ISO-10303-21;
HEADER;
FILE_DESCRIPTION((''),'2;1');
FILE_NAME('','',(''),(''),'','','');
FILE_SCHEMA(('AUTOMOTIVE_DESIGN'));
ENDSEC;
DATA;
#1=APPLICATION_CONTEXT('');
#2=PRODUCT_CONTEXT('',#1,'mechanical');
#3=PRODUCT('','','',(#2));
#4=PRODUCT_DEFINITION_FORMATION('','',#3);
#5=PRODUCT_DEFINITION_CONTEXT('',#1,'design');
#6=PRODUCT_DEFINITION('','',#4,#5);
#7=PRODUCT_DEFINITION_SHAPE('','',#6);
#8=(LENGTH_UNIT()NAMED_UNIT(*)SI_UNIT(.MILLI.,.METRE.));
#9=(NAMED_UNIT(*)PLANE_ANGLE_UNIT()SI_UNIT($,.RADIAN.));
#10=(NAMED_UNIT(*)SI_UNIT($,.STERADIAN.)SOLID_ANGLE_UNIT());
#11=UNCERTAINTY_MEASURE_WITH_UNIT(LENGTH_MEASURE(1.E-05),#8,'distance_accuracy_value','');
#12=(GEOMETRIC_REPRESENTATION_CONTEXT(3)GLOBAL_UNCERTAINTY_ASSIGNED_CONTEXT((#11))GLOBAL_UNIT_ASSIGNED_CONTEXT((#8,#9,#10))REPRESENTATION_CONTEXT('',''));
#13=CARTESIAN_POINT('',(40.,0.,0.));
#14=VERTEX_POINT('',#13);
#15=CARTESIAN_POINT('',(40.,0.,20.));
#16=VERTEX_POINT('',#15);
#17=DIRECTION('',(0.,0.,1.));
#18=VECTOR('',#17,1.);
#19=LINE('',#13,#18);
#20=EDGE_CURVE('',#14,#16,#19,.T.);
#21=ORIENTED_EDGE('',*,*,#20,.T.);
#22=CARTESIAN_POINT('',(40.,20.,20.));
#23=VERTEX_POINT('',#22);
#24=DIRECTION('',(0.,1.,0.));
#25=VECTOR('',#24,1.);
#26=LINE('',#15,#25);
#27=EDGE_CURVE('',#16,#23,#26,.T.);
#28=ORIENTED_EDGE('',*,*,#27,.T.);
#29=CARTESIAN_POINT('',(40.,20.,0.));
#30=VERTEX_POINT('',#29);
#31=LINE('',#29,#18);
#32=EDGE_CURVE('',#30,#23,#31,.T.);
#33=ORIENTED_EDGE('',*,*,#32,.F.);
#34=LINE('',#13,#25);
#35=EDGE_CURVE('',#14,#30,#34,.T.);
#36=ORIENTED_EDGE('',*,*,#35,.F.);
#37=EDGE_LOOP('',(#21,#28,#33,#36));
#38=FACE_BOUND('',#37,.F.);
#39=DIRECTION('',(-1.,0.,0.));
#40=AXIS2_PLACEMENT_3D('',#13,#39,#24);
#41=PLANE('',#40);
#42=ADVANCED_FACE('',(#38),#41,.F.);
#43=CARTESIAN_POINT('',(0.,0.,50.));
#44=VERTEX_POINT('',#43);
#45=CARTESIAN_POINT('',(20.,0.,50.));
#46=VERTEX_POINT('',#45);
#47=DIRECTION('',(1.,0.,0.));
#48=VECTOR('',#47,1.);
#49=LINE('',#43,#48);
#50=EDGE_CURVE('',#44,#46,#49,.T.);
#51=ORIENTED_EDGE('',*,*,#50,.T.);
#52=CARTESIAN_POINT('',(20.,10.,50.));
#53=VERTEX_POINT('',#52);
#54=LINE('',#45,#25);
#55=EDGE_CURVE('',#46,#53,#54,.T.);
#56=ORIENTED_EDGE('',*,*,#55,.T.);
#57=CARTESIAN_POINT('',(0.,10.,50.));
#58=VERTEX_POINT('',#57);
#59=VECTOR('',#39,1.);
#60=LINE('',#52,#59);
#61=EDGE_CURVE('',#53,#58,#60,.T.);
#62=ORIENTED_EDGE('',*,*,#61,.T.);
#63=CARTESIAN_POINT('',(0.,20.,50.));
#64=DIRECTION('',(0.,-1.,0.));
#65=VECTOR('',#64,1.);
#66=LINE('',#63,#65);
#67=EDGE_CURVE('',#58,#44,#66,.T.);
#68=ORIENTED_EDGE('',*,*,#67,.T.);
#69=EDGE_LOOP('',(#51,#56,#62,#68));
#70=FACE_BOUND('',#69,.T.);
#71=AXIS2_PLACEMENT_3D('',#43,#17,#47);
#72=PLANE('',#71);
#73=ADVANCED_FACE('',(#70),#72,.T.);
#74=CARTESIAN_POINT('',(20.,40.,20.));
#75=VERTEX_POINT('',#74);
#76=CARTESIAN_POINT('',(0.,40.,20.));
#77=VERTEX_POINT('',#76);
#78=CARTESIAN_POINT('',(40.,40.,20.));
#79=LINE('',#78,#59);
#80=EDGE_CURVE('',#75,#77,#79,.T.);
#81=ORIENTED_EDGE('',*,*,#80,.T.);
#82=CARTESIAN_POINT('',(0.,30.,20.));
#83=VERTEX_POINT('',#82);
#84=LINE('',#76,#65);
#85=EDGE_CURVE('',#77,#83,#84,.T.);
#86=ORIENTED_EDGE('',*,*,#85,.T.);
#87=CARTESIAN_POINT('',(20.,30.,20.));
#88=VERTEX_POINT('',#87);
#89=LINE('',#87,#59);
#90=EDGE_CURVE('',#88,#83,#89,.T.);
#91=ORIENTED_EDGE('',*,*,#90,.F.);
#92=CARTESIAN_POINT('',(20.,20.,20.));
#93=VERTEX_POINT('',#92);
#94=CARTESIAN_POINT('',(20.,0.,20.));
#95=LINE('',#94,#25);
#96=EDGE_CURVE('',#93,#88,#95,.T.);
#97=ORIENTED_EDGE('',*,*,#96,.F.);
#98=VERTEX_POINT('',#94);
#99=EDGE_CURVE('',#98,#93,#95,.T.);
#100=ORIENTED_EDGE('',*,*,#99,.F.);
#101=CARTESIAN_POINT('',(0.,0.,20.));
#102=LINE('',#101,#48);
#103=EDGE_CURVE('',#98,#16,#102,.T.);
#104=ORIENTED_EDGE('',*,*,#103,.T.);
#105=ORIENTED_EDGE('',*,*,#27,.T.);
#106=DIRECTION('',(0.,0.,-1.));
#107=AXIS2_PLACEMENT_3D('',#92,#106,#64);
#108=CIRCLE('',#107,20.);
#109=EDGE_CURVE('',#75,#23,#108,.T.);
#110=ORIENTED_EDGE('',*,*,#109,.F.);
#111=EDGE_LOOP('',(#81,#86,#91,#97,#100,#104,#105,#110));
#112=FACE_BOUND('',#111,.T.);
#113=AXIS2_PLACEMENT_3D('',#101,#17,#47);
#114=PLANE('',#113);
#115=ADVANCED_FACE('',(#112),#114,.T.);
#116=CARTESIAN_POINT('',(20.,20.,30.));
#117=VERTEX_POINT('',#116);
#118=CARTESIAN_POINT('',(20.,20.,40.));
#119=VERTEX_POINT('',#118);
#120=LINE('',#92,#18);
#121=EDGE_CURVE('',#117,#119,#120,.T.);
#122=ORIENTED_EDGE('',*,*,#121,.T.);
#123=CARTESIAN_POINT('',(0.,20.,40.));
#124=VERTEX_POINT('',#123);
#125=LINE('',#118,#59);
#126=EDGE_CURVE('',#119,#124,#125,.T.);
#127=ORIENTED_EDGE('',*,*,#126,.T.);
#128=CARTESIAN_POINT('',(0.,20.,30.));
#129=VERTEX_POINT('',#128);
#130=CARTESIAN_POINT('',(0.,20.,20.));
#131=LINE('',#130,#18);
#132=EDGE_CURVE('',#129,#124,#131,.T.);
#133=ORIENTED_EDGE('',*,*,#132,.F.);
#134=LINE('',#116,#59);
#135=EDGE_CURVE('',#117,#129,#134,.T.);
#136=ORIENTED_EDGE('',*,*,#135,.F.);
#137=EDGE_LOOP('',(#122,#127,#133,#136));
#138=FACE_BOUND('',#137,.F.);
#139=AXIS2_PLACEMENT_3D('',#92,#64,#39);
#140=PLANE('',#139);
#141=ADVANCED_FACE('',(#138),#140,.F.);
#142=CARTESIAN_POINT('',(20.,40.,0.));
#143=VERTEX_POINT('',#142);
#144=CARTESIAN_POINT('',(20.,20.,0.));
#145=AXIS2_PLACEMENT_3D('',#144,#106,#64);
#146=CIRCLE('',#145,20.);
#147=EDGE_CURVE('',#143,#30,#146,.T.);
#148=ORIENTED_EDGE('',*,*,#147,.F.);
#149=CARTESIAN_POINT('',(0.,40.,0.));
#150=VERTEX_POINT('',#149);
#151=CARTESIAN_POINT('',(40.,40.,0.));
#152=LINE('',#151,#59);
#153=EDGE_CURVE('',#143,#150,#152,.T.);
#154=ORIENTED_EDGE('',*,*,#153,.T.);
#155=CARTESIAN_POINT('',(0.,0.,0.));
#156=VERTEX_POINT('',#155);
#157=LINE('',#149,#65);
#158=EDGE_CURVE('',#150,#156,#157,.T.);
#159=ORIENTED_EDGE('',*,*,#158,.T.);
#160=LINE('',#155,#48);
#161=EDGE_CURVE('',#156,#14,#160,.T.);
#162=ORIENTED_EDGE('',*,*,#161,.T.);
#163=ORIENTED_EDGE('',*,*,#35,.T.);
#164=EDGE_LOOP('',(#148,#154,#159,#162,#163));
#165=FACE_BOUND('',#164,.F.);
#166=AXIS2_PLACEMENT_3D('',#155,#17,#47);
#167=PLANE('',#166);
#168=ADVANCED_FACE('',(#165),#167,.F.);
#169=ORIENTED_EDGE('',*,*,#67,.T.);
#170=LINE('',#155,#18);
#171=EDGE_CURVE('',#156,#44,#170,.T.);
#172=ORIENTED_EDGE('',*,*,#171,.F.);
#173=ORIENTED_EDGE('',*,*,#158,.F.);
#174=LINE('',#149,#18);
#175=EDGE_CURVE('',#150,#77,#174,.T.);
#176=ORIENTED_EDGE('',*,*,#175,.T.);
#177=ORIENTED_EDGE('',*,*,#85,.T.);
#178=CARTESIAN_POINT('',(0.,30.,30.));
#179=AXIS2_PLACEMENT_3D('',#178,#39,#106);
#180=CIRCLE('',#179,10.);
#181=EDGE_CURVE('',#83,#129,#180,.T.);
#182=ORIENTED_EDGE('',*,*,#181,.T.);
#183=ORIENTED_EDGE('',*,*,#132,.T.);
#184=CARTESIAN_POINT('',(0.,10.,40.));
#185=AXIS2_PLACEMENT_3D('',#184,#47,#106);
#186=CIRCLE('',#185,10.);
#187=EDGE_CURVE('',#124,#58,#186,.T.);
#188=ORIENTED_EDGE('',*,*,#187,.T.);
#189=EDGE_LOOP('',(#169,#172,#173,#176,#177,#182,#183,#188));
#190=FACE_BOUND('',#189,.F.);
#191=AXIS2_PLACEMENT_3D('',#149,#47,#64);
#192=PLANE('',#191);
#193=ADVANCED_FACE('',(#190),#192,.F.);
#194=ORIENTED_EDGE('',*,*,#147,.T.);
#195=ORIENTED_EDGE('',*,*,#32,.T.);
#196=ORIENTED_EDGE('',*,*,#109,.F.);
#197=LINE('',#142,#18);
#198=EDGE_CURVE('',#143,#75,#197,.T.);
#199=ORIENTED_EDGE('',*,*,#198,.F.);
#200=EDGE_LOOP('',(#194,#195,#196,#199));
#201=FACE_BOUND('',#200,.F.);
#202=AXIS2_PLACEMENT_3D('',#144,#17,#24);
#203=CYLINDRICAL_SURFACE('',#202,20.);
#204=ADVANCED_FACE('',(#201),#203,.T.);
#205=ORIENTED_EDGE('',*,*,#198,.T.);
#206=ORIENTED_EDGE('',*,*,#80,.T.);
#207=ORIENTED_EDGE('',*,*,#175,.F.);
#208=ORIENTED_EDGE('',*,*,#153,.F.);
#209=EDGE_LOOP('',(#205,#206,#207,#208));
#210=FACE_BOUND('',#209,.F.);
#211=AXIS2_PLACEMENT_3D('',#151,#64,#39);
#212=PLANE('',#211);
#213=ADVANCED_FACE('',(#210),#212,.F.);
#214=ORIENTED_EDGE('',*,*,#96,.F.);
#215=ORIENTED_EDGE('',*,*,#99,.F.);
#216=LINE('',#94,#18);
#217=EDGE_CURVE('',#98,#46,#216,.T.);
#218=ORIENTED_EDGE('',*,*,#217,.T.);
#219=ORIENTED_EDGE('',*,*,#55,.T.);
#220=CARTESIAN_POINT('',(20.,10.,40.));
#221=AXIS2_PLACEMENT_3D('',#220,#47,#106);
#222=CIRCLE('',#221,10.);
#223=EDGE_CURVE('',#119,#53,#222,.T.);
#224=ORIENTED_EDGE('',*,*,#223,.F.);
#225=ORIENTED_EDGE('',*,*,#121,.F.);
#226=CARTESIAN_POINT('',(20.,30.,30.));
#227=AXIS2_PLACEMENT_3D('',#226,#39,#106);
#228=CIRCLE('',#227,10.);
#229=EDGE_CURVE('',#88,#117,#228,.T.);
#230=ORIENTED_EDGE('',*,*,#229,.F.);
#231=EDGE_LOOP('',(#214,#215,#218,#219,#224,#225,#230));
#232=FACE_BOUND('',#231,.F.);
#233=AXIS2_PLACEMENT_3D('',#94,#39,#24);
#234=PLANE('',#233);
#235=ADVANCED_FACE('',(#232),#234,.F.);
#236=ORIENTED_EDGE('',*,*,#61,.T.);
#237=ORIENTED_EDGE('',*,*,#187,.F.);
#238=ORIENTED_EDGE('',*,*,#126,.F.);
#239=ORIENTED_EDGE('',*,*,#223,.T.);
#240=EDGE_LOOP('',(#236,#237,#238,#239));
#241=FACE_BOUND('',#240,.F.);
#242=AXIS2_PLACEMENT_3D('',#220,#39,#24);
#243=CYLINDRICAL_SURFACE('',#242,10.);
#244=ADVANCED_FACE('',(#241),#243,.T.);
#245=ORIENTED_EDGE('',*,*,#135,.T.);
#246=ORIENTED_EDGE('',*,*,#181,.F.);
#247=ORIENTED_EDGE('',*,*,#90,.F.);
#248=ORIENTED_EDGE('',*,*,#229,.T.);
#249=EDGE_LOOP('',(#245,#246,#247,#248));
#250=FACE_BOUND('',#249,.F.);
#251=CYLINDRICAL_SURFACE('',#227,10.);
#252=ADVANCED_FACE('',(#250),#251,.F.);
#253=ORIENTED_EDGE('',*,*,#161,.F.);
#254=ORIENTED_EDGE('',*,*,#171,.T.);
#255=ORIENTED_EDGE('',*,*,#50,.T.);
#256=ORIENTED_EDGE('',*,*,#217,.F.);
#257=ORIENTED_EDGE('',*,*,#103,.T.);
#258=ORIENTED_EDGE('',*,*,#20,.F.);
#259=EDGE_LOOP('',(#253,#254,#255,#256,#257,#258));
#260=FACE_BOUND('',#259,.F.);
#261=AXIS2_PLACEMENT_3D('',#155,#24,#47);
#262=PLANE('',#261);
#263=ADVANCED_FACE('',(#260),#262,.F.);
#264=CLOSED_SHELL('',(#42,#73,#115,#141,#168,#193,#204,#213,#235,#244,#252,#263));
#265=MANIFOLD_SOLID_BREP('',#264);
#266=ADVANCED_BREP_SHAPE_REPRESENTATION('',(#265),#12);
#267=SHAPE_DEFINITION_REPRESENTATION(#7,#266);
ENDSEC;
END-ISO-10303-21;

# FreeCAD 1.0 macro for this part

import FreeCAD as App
import Part
import Sketcher

V = App.Vector


def edges_at(feature, points):
    """Names of the edges that pass closest to the given points."""
    edges = feature.Shape.Edges
    near = lambda p: min(range(len(edges)), key=lambda i: edges[i].distToShape(Part.Vertex(*p))[0])
    return sorted({f"Edge{near(p) + 1}" for p in points})


def add_polygon(sketch, points):
    """Adds a closed chain of lines whose ends are joined by coincident constraints."""
    first, n = sketch.GeometryCount, len(points)
    for a, b in zip(points, points[1:] + points[:1]):
        sketch.addGeometry(Part.LineSegment(App.Vector(*a, 0), App.Vector(*b, 0)), False)
    for i in range(n):
        sketch.addConstraint(Sketcher.Constraint("Coincident", first + i, 2, first + (i + 1) % n, 1))

doc = App.newDocument("Part")
body = doc.addObject("PartDesign::Body", "Body")

sketch1 = doc.addObject("Sketcher::SketchObject", "Sketch")
body.addObject(sketch1)
sketch1.AttachmentSupport = (doc.XY_Plane, [""])
sketch1.MapMode = "FlatFace"
add_polygon(sketch1, [(0, 40), (0, 0), (40, 0), (40, 40)])
sketch1.addConstraint([
    Sketcher.Constraint("Vertical", 0),
    Sketcher.Constraint("Horizontal", 1),
    Sketcher.Constraint("Vertical", 2),
    Sketcher.Constraint("Horizontal", 3),
    Sketcher.Constraint("Coincident", 0, 2, -1, 1),
    Sketcher.Constraint("Equal", 3, 0),
    Sketcher.Constraint("DistanceX", 1, 1, 1, 2, 40.0),
])
pad1 = doc.addObject("PartDesign::Pad", "Pad")
body.addObject(pad1)
pad1.Profile = sketch1
pad1.Length = 20

sketch2 = doc.addObject("Sketcher::SketchObject", "Sketch001")
body.addObject(sketch2)
sketch2.AttachmentSupport = (doc.XY_Plane, [""])
sketch2.MapMode = "FlatFace"
sketch2.AttachmentOffset = App.Placement(V(0, 0, 20), App.Rotation())
add_polygon(sketch2, [(0, 20), (0, 0), (20, 0), (20, 20)])
sketch2.addConstraint([
    Sketcher.Constraint("Vertical", 0),
    Sketcher.Constraint("Horizontal", 1),
    Sketcher.Constraint("Vertical", 2),
    Sketcher.Constraint("Horizontal", 3),
    Sketcher.Constraint("Coincident", 0, 2, -1, 1),
    Sketcher.Constraint("Equal", 3, 0),
    Sketcher.Constraint("DistanceX", 1, 1, 1, 2, 20.0),
])
pad2 = doc.addObject("PartDesign::Pad", "Pad001")
body.addObject(pad2)
pad2.Profile = sketch2
pad2.Length = 30
doc.recompute()

fillet = doc.addObject("PartDesign::Fillet", "Fillet")
body.addObject(fillet)
fillet.Base = (pad2, edges_at(pad2, [(10, 20, 20), (10, 20, 50)]))
fillet.Radius = 10
doc.recompute()

fillet2 = doc.addObject("PartDesign::Fillet", "Fillet001")
body.addObject(fillet2)
fillet2.Base = (fillet, edges_at(fillet, [(40, 40, 10)]))
fillet2.Radius = 20

doc.recompute()
